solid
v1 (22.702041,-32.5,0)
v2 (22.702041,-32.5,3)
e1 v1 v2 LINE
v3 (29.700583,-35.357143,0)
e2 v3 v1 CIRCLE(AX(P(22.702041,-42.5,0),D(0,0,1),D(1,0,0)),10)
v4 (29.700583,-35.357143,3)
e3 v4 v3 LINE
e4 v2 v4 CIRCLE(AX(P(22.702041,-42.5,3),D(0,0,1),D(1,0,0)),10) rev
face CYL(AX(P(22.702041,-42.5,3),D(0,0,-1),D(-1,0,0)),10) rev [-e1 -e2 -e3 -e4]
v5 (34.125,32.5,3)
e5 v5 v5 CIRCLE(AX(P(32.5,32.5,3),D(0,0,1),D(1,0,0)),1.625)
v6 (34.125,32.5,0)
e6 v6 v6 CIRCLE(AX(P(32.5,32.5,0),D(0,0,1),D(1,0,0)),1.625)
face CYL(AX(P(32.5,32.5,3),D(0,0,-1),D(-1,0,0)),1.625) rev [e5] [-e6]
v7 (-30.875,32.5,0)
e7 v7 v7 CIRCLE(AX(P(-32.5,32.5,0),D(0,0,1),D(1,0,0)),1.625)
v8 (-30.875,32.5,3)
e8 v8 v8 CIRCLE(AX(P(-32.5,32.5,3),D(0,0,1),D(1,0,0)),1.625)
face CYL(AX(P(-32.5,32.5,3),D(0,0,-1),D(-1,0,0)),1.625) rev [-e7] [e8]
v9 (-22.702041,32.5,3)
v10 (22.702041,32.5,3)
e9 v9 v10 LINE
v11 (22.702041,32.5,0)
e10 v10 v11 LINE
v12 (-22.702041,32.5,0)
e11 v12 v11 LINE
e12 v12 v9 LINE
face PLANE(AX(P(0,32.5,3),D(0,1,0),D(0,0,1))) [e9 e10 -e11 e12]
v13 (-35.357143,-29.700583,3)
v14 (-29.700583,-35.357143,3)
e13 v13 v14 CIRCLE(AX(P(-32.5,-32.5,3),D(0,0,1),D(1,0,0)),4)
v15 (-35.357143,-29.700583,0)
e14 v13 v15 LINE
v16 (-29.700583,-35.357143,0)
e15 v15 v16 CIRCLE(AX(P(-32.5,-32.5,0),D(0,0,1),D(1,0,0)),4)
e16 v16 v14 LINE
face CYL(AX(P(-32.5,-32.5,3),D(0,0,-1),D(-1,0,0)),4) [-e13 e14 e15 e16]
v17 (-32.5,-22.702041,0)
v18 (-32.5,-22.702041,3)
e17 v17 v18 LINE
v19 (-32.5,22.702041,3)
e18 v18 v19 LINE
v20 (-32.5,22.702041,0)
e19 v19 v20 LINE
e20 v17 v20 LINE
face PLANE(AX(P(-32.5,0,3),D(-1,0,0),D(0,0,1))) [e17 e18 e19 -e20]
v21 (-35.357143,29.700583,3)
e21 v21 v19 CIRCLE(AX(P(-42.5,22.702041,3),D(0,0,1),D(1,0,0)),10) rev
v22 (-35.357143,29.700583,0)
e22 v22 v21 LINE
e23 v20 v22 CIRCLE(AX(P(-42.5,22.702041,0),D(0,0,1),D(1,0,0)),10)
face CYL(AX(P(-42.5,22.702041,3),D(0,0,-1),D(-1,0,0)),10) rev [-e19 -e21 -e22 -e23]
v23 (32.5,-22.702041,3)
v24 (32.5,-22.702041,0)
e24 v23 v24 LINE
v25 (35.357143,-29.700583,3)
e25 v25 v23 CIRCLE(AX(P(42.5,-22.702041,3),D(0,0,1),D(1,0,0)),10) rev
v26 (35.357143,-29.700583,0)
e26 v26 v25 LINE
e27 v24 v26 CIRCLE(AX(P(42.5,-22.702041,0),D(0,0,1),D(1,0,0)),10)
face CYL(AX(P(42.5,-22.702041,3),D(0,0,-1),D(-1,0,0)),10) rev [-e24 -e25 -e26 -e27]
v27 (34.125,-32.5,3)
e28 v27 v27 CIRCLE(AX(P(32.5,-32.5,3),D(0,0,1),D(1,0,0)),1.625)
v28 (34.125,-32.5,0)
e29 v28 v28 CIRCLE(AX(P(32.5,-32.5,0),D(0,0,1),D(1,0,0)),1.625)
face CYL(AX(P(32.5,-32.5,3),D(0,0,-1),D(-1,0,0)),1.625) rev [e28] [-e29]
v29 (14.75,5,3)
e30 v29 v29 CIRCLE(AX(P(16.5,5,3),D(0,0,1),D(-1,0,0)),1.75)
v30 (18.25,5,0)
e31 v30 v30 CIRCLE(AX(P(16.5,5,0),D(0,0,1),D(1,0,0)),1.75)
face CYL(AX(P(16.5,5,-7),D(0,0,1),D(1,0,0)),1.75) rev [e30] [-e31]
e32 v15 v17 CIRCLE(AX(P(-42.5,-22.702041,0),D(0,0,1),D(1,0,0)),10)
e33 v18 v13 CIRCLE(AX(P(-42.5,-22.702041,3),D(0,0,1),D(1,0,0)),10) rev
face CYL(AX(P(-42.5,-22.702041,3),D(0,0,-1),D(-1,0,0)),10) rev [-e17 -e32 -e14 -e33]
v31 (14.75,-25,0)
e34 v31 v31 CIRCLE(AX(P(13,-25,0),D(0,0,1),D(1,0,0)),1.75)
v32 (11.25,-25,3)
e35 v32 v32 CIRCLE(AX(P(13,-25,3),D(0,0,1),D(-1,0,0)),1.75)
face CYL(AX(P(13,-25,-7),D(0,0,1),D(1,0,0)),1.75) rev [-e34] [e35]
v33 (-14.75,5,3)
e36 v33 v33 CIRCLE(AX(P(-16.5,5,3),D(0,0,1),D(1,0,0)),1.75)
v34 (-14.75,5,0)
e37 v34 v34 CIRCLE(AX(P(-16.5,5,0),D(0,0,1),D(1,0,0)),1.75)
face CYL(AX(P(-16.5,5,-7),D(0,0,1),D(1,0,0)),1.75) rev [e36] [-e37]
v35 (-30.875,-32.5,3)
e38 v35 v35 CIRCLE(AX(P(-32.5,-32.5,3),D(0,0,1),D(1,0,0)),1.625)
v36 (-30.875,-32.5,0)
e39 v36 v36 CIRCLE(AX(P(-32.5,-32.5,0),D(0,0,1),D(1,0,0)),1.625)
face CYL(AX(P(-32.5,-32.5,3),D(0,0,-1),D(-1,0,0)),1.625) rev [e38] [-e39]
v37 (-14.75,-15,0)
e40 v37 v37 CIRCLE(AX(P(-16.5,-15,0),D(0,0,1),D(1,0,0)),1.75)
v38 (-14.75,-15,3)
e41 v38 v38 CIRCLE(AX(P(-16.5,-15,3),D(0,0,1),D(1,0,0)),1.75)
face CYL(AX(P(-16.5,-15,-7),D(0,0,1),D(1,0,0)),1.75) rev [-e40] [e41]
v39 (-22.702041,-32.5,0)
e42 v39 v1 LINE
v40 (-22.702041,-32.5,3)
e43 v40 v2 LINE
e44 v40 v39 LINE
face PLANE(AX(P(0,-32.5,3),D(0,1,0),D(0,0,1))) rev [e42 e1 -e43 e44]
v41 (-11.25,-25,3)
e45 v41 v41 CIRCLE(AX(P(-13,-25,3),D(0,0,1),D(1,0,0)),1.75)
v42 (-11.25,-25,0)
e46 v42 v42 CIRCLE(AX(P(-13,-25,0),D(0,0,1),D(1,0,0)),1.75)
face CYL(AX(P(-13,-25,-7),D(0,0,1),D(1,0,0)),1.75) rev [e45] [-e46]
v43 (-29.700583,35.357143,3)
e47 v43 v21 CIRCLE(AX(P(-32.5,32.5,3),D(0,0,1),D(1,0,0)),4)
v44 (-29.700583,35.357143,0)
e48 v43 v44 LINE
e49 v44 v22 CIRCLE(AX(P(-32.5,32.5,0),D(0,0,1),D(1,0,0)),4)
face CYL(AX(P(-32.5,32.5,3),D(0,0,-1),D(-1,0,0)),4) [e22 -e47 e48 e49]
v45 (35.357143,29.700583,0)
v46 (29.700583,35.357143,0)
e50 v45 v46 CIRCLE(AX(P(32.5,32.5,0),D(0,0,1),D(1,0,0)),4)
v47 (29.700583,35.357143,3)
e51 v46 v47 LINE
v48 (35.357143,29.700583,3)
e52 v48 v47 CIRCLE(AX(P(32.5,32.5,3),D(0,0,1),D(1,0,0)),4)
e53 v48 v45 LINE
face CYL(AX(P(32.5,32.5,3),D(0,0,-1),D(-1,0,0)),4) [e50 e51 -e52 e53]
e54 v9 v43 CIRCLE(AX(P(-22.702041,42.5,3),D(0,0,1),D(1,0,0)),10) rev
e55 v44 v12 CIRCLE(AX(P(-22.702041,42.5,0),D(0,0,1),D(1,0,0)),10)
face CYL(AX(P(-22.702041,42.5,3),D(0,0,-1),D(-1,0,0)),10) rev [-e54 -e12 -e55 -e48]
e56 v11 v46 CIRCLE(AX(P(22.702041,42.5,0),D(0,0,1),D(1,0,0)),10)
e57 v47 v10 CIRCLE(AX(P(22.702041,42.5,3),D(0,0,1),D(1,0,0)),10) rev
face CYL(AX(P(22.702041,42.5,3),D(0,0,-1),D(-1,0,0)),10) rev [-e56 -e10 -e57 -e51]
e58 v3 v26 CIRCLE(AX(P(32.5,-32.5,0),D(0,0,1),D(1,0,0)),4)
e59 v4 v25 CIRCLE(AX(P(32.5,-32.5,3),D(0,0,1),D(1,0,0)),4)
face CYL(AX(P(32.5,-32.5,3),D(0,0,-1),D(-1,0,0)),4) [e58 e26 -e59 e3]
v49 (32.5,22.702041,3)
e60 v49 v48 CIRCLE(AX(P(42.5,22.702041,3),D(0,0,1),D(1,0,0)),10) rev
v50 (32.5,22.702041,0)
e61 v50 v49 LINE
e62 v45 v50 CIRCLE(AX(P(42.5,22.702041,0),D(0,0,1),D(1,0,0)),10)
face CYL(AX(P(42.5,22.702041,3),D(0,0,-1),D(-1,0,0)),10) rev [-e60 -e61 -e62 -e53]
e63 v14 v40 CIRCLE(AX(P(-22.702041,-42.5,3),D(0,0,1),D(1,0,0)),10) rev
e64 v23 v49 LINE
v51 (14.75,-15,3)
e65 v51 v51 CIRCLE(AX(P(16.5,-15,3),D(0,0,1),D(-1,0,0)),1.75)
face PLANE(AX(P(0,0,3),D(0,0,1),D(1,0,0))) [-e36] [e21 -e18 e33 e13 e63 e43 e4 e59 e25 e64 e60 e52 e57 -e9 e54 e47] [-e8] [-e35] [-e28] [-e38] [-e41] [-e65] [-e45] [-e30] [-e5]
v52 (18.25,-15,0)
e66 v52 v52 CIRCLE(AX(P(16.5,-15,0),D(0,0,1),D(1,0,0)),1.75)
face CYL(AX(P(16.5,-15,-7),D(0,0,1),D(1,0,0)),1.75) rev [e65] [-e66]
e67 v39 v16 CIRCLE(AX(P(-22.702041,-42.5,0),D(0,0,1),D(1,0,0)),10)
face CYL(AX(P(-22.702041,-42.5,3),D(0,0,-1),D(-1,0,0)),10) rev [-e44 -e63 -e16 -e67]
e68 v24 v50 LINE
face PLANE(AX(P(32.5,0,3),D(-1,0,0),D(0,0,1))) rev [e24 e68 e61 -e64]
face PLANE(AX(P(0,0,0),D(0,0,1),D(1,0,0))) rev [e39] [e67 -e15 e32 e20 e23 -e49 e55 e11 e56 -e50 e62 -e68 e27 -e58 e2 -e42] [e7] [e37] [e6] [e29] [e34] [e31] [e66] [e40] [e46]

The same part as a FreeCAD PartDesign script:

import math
import FreeCAD as App
import Part
import Sketcher
Q = App.Units.Quantity


def edges_at(feature, points):
    """Names of the edges that pass closest to the given points."""
    edges = feature.Shape.Edges
    near = lambda p: min(range(len(edges)), key=lambda i: edges[i].distToShape(Part.Vertex(*p))[0])
    return sorted({f"Edge{near(p) + 1}" for p in points})

doc = App.newDocument("Part")
body = doc.addObject("PartDesign::Body", "Body")

sketch1 = body.newObject("Sketcher::SketchObject", "Sketch")
sketch1.AttachmentSupport = (doc.getObject("XY_Plane"), [""])
sketch1.MapMode = "FlatFace"
sketch1.addGeometry([
    Part.ArcOfCircle(Part.Circle(App.Vector(-32.5, -32.5, 0), App.Vector(0, 0, 1), 4), math.radians(90), math.radians(360)),
    Part.LineSegment(App.Vector(-28.5, -32.5, 0), App.Vector(28.5, -32.5, 0)),
    Part.ArcOfCircle(Part.Circle(App.Vector(32.5, -32.5, 0), App.Vector(0, 0, 1), 4), math.radians(180), math.radians(450)),
    Part.LineSegment(App.Vector(32.5, -28.5, 0), App.Vector(32.5, 28.5, 0)),
    Part.ArcOfCircle(Part.Circle(App.Vector(32.5, 32.5, 0), App.Vector(0, 0, 1), 4), math.radians(-90), math.radians(180)),
    Part.LineSegment(App.Vector(28.5, 32.5, 0), App.Vector(-28.5, 32.5, 0)),
    Part.ArcOfCircle(Part.Circle(App.Vector(-32.5, 32.5, 0), App.Vector(0, 0, 1), 4), math.radians(0), math.radians(270)),
    Part.LineSegment(App.Vector(-32.5, 28.5, 0), App.Vector(-32.5, -28.5, 0)),
    Part.Circle(App.Vector(-32.5, -32.5, 0), App.Vector(0, 0, 1), 1.6),
    Part.Circle(App.Vector(32.5, -32.5, 0), App.Vector(0, 0, 1), 1.6),
    Part.Circle(App.Vector(-32.5, 32.5, 0), App.Vector(0, 0, 1), 1.6),
    Part.Circle(App.Vector(32.5, 32.5, 0), App.Vector(0, 0, 1), 1.6),
], False)
sketch1.addConstraint([
    Sketcher.Constraint("Coincident", 0, 2, 1, 1),
    Sketcher.Constraint("Coincident", 1, 2, 2, 1),
    Sketcher.Constraint("Coincident", 2, 2, 3, 1),
    Sketcher.Constraint("Coincident", 3, 2, 4, 1),
    Sketcher.Constraint("Coincident", 4, 2, 5, 1),
    Sketcher.Constraint("Coincident", 5, 2, 6, 1),
    Sketcher.Constraint("Coincident", 6, 2, 7, 1),
    Sketcher.Constraint("Coincident", 7, 2, 0, 1),
    Sketcher.Constraint("Horizontal", 1),
    Sketcher.Constraint("Vertical", 3),
    Sketcher.Constraint("Horizontal", 5),
    Sketcher.Constraint("Vertical", 7),
    Sketcher.Constraint("Coincident", 8, 3, 0, 3),
    Sketcher.Constraint("Coincident", 9, 3, 2, 3),
    Sketcher.Constraint("Coincident", 10, 3, 6, 3),
    Sketcher.Constraint("Coincident", 11, 3, 4, 3),
    Sketcher.Constraint("Equal", 0, 2),
    Sketcher.Constraint("Equal", 2, 4),
    Sketcher.Constraint("Equal", 4, 6),
    Sketcher.Constraint("Equal", 8, 9),
    Sketcher.Constraint("Equal", 9, 10),
    Sketcher.Constraint("Equal", 10, 11),
    Sketcher.Constraint("Symmetric", 0, 3, 4, 3, -1, 1),
    Sketcher.Constraint("Symmetric", 2, 3, 6, 3, -1, 1),
    Sketcher.Constraint("Symmetric", 0, 3, 2, 3, -2),
    Sketcher.Constraint("Horizontal", 9, 3, 0, 2),
    Sketcher.Constraint("Horizontal", 11, 3, 4, 2),
    Sketcher.Constraint("Vertical", 11, 3, 2, 2),
    Sketcher.Constraint("Vertical", 10, 3, 6, 2),
    Sketcher.Constraint("Equal", 5, 3),
    Sketcher.Constraint("Radius", 0, Q("4 mm")),
    Sketcher.Constraint("Diameter", 8, Q("3.25 mm")),
    Sketcher.Constraint("DistanceX", 1, 1, 1, 2, Q("57 mm")),
])
pad1 = body.newObject("PartDesign::Pad", "Pad")
pad1.Profile = sketch1
pad1.Length = 3
doc.recompute()

fillet = body.newObject("PartDesign::Fillet", "Fillet")
fillet.Base = (pad1, edges_at(pad1, [
    (-32.5, -28.5, 1.5),
    (-32.5, 28.5, 1.5),
    (-28.5, 32.5, 1.5),
    (28.5, 32.5, 1.5),
    (32.5, 28.5, 1.5),
    (32.5, -28.5, 1.5),
    (28.5, -32.5, 1.5),
    (-28.5, -32.5, 1.5),
]))
fillet.Radius = 10

sketch2 = body.newObject("Sketcher::SketchObject", "Sketch001")
sketch2.AttachmentSupport = (doc.getObject("XY_Plane"), [""])
sketch2.MapMode = "FlatFace"
sketch2.AttachmentOffset = App.Placement(App.Vector(0, 0, 3), App.Rotation())
sketch2.addGeometry([
    Part.Circle(App.Vector(-13, -25, 0), App.Vector(0, 0, 1), 1.8),
    Part.Circle(App.Vector(13, -25, 0), App.Vector(0, 0, 1), 1.8),
], False)
sketch2.addConstraint([
    Sketcher.Constraint("Equal", 0, 1),
    Sketcher.Constraint("Symmetric", 0, 3, 1, 3, -2),
    Sketcher.Constraint("Diameter", 0, Q("3.5 mm")),
    Sketcher.Constraint("DistanceX", 0, 3, -1, 1, Q("13 mm")),
    Sketcher.Constraint("DistanceY", 0, 3, -1, 1, Q("25 mm")),
])
pocket1 = body.newObject("PartDesign::Pocket", "Pocket")
pocket1.Profile = sketch2
pocket1.Length = 10

sketch3 = body.newObject("Sketcher::SketchObject", "Sketch002")
sketch3.AttachmentSupport = (doc.getObject("XY_Plane"), [""])
sketch3.MapMode = "FlatFace"
sketch3.AttachmentOffset = App.Placement(App.Vector(0, 0, 3), App.Rotation())
sketch3.addGeometry([
    Part.Circle(App.Vector(-16.5, -15, 0), App.Vector(0, 0, 1), 1.8),
    Part.Circle(App.Vector(16.5, -15, 0), App.Vector(0, 0, 1), 1.8),
], False)
sketch3.addConstraint([
    Sketcher.Constraint("Equal", 0, 1),
    Sketcher.Constraint("Symmetric", 0, 3, 1, 3, -2),
    Sketcher.Constraint("Diameter", 0, Q("3.5 mm")),
    Sketcher.Constraint("DistanceY", 0, 3, -1, 1, Q("15 mm")),
    Sketcher.Constraint("DistanceX", 0, 3, 1, 3, Q("33 mm")),
])
pocket2 = body.newObject("PartDesign::Pocket", "Pocket001")
pocket2.Profile = sketch3
pocket2.Length = 10

sketch4 = body.newObject("Sketcher::SketchObject", "Sketch003")
sketch4.AttachmentSupport = (doc.getObject("XY_Plane"), [""])
sketch4.MapMode = "FlatFace"
sketch4.AttachmentOffset = App.Placement(App.Vector(0, 0, 3), App.Rotation())
sketch4.addGeometry([
    Part.Circle(App.Vector(-16.5, 5, 0), App.Vector(0, 0, 1), 1.8),
    Part.Circle(App.Vector(16.5, 5, 0), App.Vector(0, 0, 1), 1.8),
], False)
sketch4.addConstraint([
    Sketcher.Constraint("Equal", 0, 1),
    Sketcher.Constraint("Symmetric", 0, 3, 1, 3, -2),
    Sketcher.Constraint("Diameter", 0, Q("3.5 mm")),
    Sketcher.Constraint("DistanceY", -1, 1, 0, 3, Q("5 mm")),
    Sketcher.Constraint("DistanceX", 0, 3, 1, 3, Q("33 mm")),
])
pocket3 = body.newObject("PartDesign::Pocket", "Pocket002")
pocket3.Profile = sketch4
pocket3.Length = 10

doc.recompute()
